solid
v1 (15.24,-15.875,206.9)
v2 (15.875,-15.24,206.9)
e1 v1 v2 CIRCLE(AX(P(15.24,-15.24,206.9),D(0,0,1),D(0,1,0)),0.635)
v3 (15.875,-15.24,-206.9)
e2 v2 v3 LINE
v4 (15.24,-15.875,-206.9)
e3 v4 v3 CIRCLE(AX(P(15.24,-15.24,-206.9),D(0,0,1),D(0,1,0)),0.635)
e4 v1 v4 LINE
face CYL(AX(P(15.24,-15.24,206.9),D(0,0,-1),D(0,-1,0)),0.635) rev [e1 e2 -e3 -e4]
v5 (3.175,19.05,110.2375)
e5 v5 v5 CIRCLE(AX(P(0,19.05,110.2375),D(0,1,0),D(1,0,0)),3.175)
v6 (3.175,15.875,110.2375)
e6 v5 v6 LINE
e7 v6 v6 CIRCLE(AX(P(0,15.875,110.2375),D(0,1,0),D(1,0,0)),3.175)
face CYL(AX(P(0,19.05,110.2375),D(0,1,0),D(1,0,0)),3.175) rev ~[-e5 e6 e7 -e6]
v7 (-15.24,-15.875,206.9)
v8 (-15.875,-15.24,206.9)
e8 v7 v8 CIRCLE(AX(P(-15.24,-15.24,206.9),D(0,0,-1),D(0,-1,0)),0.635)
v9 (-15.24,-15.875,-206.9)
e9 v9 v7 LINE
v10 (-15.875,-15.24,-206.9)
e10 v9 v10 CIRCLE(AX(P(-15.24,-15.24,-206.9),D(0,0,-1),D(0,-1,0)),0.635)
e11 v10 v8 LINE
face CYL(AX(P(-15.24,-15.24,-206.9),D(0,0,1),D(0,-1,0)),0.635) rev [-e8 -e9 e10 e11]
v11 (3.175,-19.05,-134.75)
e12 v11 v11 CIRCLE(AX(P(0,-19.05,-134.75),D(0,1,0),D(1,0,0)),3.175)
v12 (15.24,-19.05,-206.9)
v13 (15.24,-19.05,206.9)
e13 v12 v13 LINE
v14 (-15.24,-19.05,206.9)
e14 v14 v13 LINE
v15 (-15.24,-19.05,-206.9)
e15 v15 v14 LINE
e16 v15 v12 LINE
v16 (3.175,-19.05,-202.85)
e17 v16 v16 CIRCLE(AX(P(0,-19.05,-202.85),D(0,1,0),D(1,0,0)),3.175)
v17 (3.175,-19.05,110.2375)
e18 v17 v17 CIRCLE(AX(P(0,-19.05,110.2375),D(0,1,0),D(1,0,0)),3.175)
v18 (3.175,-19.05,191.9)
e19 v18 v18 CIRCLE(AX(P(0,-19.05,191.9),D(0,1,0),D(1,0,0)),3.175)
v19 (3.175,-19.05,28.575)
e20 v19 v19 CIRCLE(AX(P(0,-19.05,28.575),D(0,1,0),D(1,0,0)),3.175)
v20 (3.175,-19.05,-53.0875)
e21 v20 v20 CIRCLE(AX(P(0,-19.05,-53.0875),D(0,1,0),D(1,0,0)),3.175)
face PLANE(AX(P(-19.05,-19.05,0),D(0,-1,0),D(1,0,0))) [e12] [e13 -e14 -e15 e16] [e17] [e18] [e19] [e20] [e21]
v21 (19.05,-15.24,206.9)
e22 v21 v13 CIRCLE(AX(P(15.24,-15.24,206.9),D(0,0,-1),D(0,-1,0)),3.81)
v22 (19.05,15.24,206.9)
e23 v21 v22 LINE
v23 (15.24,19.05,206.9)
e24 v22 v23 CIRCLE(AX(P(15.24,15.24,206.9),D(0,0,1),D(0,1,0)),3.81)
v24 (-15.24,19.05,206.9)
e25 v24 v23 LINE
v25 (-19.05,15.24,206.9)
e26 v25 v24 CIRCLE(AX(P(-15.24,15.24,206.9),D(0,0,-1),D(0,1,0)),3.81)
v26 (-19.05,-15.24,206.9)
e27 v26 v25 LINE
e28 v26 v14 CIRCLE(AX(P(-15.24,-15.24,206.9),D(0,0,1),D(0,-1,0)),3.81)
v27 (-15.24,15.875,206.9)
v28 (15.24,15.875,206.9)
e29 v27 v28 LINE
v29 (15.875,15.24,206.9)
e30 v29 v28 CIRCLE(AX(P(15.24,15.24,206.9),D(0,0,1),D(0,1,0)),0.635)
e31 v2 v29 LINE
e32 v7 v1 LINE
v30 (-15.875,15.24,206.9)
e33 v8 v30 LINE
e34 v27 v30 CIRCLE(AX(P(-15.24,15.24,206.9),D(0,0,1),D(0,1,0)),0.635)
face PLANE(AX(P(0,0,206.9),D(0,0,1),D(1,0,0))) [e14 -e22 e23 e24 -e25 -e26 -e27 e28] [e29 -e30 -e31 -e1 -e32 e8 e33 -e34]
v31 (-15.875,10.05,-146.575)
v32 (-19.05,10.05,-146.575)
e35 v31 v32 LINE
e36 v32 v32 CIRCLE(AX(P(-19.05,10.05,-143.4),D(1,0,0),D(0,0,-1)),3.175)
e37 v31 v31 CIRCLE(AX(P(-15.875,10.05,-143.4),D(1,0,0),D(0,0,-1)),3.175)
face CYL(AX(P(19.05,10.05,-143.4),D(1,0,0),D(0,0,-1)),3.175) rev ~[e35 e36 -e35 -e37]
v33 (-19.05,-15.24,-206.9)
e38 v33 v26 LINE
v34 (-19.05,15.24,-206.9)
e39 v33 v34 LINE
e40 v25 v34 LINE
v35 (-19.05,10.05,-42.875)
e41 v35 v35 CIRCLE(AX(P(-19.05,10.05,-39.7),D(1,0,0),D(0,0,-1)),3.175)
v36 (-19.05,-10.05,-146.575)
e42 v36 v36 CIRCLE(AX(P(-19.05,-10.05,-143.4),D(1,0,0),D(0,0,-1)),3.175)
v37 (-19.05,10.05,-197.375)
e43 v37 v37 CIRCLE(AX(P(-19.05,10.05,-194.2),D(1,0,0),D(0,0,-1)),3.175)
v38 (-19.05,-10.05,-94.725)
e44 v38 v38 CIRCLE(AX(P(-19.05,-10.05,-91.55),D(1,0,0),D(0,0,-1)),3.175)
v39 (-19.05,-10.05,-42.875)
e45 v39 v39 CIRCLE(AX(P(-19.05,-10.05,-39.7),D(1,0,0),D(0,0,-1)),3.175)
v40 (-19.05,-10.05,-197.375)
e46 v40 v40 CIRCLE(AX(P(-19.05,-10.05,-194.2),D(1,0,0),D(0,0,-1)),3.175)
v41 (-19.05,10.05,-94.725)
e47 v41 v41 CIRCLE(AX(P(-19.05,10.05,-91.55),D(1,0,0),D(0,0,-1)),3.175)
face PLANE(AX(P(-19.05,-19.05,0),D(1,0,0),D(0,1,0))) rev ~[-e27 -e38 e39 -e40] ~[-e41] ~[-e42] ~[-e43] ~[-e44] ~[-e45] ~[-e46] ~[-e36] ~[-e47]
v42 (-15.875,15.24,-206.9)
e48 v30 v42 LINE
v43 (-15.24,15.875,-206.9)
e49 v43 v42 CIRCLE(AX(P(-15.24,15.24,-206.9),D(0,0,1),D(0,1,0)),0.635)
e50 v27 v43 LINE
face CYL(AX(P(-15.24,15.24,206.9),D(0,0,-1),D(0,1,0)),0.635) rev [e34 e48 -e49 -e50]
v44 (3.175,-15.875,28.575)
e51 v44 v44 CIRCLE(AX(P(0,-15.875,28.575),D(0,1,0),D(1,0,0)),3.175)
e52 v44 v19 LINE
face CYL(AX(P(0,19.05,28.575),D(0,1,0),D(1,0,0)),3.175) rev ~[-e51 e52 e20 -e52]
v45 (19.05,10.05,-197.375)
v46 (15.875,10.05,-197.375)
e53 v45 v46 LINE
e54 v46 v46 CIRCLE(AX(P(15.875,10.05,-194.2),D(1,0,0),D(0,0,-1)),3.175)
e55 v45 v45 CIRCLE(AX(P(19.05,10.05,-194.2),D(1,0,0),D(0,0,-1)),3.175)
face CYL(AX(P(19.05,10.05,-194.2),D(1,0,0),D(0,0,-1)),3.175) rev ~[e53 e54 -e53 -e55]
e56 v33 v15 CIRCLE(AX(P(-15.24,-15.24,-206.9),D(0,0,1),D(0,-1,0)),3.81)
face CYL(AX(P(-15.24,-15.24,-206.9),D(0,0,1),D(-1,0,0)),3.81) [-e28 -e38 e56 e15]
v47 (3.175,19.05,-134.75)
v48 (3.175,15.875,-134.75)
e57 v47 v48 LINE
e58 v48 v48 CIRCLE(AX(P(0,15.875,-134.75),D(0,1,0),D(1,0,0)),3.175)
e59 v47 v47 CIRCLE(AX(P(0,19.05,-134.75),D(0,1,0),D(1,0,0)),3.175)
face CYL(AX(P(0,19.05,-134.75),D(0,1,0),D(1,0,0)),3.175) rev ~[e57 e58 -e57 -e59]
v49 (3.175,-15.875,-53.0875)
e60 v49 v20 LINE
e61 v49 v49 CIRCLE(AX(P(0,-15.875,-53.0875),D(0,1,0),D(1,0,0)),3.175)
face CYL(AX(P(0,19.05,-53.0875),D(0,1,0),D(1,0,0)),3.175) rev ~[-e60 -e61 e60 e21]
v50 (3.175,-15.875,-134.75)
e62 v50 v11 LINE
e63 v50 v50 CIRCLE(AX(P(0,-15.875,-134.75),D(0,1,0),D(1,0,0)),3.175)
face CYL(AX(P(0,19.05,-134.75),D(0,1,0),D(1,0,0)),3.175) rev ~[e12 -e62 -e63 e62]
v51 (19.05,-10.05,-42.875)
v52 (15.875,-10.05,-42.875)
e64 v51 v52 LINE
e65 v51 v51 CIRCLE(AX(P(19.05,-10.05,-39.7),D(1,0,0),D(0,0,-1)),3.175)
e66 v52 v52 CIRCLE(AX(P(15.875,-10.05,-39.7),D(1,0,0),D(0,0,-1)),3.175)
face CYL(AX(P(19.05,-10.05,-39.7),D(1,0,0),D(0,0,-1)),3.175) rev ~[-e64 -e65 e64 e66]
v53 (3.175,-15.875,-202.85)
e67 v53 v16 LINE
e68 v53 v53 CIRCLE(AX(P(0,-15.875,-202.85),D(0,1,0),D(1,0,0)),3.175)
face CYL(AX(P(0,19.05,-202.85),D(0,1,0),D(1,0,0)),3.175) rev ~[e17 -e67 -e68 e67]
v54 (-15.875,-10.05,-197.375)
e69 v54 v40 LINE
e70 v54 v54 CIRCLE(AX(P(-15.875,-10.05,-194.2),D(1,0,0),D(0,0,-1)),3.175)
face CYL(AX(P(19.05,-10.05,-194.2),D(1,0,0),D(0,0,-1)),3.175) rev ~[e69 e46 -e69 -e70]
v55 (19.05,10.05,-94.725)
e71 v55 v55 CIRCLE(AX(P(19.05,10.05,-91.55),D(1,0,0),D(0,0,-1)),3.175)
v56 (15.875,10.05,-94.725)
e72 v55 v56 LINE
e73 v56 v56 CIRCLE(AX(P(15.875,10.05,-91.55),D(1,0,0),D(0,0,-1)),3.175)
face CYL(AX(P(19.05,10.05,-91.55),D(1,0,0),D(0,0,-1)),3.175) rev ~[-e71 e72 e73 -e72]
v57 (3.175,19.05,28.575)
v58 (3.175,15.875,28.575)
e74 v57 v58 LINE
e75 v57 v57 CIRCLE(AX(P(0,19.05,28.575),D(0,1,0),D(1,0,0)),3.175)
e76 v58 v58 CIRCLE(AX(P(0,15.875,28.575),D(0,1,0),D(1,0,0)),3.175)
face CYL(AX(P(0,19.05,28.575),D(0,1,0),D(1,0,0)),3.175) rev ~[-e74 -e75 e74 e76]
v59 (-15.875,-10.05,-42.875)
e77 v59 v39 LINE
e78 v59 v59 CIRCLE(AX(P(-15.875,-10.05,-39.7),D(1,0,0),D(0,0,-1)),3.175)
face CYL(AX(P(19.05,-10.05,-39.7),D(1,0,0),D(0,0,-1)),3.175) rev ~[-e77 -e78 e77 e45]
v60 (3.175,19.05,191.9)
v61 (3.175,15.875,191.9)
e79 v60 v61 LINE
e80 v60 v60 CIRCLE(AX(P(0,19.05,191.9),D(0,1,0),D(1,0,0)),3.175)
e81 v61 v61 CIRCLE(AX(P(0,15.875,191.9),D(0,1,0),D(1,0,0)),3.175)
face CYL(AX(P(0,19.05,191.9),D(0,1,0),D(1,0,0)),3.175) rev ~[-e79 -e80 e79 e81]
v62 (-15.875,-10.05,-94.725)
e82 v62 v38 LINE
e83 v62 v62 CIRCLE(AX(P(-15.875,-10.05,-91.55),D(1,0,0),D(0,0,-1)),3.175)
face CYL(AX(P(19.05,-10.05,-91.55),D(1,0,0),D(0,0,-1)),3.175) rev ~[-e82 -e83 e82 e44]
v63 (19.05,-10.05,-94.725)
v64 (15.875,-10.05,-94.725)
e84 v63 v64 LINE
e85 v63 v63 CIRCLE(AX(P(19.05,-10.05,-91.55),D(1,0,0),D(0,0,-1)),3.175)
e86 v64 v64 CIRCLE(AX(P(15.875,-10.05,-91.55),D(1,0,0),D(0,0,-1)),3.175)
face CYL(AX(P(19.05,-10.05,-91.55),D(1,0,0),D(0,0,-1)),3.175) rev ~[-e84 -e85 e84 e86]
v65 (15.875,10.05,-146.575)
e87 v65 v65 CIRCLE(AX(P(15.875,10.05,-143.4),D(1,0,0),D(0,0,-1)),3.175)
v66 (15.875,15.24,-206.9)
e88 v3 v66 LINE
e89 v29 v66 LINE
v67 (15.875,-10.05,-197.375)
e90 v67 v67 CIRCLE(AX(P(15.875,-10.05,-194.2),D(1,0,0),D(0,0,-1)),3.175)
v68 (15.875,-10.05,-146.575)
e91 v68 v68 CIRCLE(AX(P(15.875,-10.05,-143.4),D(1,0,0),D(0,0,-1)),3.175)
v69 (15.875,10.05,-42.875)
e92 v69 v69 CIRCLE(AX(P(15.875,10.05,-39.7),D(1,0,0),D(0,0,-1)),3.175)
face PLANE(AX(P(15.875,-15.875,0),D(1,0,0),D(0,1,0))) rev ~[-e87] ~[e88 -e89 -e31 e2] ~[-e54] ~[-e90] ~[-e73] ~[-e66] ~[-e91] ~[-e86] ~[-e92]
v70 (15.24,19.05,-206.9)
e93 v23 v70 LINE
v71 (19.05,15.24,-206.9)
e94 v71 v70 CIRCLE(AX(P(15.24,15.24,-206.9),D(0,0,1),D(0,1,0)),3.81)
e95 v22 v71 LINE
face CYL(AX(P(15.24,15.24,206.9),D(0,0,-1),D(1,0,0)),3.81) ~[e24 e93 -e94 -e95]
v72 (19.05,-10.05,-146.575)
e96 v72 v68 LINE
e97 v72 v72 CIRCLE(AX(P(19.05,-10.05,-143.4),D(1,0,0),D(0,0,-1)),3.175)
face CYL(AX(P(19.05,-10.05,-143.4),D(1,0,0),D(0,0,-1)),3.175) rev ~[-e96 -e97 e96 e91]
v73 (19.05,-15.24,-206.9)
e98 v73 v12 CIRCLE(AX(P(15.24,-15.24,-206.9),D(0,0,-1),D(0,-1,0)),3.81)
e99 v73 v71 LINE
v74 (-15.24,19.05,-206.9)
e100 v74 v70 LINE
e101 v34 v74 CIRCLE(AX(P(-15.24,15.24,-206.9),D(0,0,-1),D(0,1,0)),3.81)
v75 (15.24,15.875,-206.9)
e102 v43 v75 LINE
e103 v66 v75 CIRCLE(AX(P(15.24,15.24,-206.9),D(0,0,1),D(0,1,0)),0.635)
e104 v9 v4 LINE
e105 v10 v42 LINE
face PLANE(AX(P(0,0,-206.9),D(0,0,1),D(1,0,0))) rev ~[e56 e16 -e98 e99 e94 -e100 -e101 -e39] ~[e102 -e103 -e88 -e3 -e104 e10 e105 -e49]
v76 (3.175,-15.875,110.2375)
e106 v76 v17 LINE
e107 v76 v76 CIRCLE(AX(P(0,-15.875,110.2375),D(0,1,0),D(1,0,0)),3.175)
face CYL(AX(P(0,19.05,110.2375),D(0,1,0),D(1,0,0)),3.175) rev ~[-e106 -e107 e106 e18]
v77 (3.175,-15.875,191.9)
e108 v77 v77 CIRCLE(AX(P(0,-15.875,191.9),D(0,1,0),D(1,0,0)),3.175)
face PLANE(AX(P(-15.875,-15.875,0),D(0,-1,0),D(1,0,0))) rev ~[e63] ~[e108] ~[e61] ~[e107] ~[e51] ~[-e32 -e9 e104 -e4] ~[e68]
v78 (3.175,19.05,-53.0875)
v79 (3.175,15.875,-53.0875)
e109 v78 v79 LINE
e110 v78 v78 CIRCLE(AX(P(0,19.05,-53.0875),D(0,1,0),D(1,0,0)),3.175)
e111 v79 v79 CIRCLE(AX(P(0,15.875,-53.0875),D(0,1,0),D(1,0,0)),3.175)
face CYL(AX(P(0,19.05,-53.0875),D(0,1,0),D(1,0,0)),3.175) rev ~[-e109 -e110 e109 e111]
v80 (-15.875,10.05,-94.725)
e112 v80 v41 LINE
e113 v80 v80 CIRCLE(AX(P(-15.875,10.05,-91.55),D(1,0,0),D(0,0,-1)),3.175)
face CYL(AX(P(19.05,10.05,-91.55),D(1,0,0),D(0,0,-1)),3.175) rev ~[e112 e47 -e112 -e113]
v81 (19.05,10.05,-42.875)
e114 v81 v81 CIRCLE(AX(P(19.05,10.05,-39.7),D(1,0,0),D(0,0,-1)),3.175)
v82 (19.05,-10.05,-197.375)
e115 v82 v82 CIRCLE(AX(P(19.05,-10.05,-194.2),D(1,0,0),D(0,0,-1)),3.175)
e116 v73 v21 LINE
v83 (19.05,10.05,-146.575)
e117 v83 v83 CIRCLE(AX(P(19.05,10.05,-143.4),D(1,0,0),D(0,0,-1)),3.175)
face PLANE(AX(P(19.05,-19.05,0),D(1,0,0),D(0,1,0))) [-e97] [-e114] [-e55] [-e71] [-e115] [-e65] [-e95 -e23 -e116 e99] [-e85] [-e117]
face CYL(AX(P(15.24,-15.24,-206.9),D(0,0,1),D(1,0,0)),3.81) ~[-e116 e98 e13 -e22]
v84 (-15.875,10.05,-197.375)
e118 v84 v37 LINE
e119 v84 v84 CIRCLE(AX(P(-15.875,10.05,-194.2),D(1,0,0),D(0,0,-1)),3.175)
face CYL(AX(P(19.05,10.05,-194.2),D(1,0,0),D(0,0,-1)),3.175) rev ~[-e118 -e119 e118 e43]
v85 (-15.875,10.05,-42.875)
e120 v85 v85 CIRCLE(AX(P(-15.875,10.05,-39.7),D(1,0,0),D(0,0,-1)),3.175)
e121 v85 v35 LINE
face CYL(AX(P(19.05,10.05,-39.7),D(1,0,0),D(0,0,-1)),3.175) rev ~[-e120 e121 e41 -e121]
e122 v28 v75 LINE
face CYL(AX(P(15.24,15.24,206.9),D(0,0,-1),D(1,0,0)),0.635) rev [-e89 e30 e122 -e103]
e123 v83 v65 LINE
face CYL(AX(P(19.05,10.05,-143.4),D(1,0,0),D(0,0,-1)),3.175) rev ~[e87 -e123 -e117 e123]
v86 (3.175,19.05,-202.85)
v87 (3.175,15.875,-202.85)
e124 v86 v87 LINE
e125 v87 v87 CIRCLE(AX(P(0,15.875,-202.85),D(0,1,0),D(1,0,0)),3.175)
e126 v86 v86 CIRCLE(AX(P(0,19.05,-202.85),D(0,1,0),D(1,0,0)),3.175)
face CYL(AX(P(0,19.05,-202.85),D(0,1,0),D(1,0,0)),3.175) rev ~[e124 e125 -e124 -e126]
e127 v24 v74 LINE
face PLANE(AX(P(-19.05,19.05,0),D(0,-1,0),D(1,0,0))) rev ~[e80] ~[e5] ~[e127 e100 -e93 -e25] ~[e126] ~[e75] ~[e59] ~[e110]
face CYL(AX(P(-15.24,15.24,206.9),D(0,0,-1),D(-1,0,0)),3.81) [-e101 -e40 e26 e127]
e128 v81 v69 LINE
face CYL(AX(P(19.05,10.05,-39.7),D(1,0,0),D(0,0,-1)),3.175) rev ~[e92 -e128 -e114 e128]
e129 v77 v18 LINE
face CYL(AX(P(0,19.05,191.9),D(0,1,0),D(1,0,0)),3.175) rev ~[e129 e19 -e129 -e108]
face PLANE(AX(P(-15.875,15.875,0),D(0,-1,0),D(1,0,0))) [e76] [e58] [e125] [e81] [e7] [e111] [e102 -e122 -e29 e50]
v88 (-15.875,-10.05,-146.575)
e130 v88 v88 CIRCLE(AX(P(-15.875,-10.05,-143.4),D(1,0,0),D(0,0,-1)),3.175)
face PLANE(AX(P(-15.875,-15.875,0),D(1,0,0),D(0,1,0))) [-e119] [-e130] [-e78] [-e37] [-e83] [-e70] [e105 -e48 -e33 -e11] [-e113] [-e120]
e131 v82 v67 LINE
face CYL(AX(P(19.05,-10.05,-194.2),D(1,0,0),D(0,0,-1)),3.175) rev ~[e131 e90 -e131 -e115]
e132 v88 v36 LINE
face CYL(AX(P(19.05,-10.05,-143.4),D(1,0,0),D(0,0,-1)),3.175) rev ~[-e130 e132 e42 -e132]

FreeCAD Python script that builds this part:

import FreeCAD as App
import Part
import Sketcher
from FreeCAD import Vector
Q = App.Units.Quantity


def edges_at(feature, points):
    """Names of the edges that pass closest to the given points."""
    edges = feature.Shape.Edges
    near = lambda p: min(range(len(edges)), key=lambda i: edges[i].distToShape(Part.Vertex(*p))[0])
    return sorted({f"Edge{near(p) + 1}" for p in points})


def add_polygon(sketch, points):
    """Adds a closed chain of lines whose ends are joined by coincident constraints."""
    first, n = sketch.GeometryCount, len(points)
    for a, b in zip(points, points[1:] + points[:1]):
        sketch.addGeometry(Part.LineSegment(App.Vector(*a, 0), App.Vector(*b, 0)), False)
    for i in range(n):
        sketch.addConstraint(Sketcher.Constraint("Coincident", first + i, 2, first + (i + 1) % n, 1))

doc = App.newDocument("Part")
body = doc.addObject("PartDesign::Body", "Body")

sketch1 = doc.addObject("Sketcher::SketchObject", "Sketch")
body.addObject(sketch1)
sketch1.AttachmentSupport = (doc.XY_Plane, [""])
sketch1.MapMode = "FlatFace"
add_polygon(sketch1, [(-19, 19), (-19, -19), (19, -19), (19, 19)])
add_polygon(sketch1, [(16, -16), (-16, -16), (-16, 16), (16, 16)])
sketch1.addConstraint([
    Sketcher.Constraint("Vertical", 0),
    Sketcher.Constraint("Horizontal", 1),
    Sketcher.Constraint("Vertical", 2),
    Sketcher.Constraint("Horizontal", 3),
    Sketcher.Constraint("Horizontal", 4),
    Sketcher.Constraint("Vertical", 5),
    Sketcher.Constraint("Horizontal", 6),
    Sketcher.Constraint("Vertical", 7),
    Sketcher.Constraint("Symmetric", 0, 2, 2, 2, -1, 1),
    Sketcher.Constraint("Symmetric", 4, 2, 6, 2, -1, 1),
    Sketcher.Constraint("Equal", 3, 0),
    Sketcher.Constraint("Equal", 6, 5),
    Sketcher.Constraint("DistanceX", 1, 1, 1, 2, Q("1.5 in")),
    Sketcher.Constraint("DistanceX", 4, 2, 4, 1, Q("1.25 in")),
])
pad1 = doc.addObject("PartDesign::Pad", "Pad")
body.addObject(pad1)
pad1.Profile = sketch1
pad1.Length = 413.8
pad1.Midplane = True
doc.recompute()

fillet = doc.addObject("PartDesign::Fillet", "Fillet")
body.addObject(fillet)
fillet.Base = (pad1, edges_at(pad1, [
    (19.05, -19.05, 0),
    (-19.05, -19.05, 0),
    (-19.05, 19.05, 0),
    (19.05, 19.05, 0),
]))
fillet.Radius = Q("0.15 in")
doc.recompute()

fillet2 = doc.addObject("PartDesign::Fillet", "Fillet001")
body.addObject(fillet2)
fillet2.Base = (fillet, edges_at(fillet, [
    (15.875, 15.875, 0),
    (-15.875, 15.875, 0),
    (-15.875, -15.875, 0),
    (15.875, -15.875, 0),
]))
fillet2.Radius = Q("0.025 in")

sketch2 = doc.addObject("Sketcher::SketchObject", "Sketch001")
body.addObject(sketch2)
sketch2.AttachmentSupport = (doc.XZ_Plane, [""])
sketch2.MapMode = "FlatFace"
sketch2.AttachmentOffset = App.Placement(Vector(0, 0, -0.75 * 25.4), App.Rotation())
sketch2.addGeometry([
    Part.Circle(Vector(0, -202.8, 0), Vector(0, 0, 1), 3.2),
    Part.Circle(Vector(0, -134.8, 0), Vector(0, 0, 1), 3.2),
    Part.Circle(Vector(0, -53.1, 0), Vector(0, 0, 1), 3.2),
    Part.Circle(Vector(0, 28.6, 0), Vector(0, 0, 1), 3.2),
    Part.Circle(Vector(0, 110.2, 0), Vector(0, 0, 1), 3.2),
    Part.Circle(Vector(0, 191.9, 0), Vector(0, 0, 1), 3.2),
], False)
sketch2.addConstraint([
    Sketcher.Constraint("Equal", 0, 1),
    Sketcher.Constraint("Equal", 1, 2),
    Sketcher.Constraint("Equal", 2, 3),
    Sketcher.Constraint("Equal", 3, 4),
    Sketcher.Constraint("Equal", 4, 5),
    Sketcher.Constraint("PointOnObject", 0, 3, -2),
    Sketcher.Constraint("PointOnObject", 1, 3, -2),
    Sketcher.Constraint("PointOnObject", 2, 3, -2),
    Sketcher.Constraint("PointOnObject", 3, 3, -2),
    Sketcher.Constraint("PointOnObject", 4, 3, -2),
    Sketcher.Constraint("PointOnObject", 5, 3, -2),
    Sketcher.Constraint("Diameter", 0, Q("0.25 in")),
    Sketcher.Constraint("DistanceY", -1, 1, 3, 3, Q("1.125 in")),
    Sketcher.Constraint("DistanceY", 0, 3, -1, 1, 202.85),
    Sketcher.Constraint("DistanceY", 1, 3, -1, 1, 134.75),
    Sketcher.Constraint("DistanceY", 2, 3, -1, 1, 53.0875),
    Sketcher.Constraint("DistanceY", -1, 1, 4, 3, 110.2375),
    Sketcher.Constraint("DistanceY", -1, 1, 5, 3, 191.9),
])
pocket1 = doc.addObject("PartDesign::Pocket", "Pocket")
body.addObject(pocket1)
pocket1.Profile = sketch2
pocket1.Type = "ThroughAll"
pocket1.Midplane = True

sketch3 = doc.addObject("Sketcher::SketchObject", "Sketch002")
body.addObject(sketch3)
sketch3.AttachmentSupport = (doc.YZ_Plane, [""])
sketch3.MapMode = "FlatFace"
sketch3.AttachmentOffset = App.Placement(Vector(0, 0, 0.75 * 25.4), App.Rotation())
sketch3.addGeometry([
    Part.Circle(Vector(10.1, -194.2, 0), Vector(0, 0, 1), 3.2),
    Part.Circle(Vector(-10.1, -194.2, 0), Vector(0, 0, 1), 3.2),
    Part.Circle(Vector(10.1, -143.4, 0), Vector(0, 0, 1), 3.2),
    Part.Circle(Vector(10.1, -39.7, 0), Vector(0, 0, 1), 3.2),
    Part.Circle(Vector(10.1, -91.5, 0), Vector(0, 0, 1), 3.2),
    Part.Circle(Vector(-10.1, -143.4, 0), Vector(0, 0, 1), 3.2),
    Part.Circle(Vector(-10.1, -91.5, 0), Vector(0, 0, 1), 3.2),
    Part.Circle(Vector(-10.1, -39.7, 0), Vector(0, 0, 1), 3.2),
], False)
sketch3.addConstraint([
    Sketcher.Constraint("Equal", 0, 1),
    Sketcher.Constraint("Equal", 1, 2),
    Sketcher.Constraint("Equal", 2, 3),
    Sketcher.Constraint("Equal", 3, 4),
    Sketcher.Constraint("Equal", 4, 5),
    Sketcher.Constraint("Equal", 5, 6),
    Sketcher.Constraint("Equal", 6, 7),
    Sketcher.Constraint("Symmetric", 0, 3, 1, 3, -2),
    Sketcher.Constraint("Symmetric", 2, 3, 5, 3, -2),
    Sketcher.Constraint("Symmetric", 4, 3, 6, 3, -2),
    Sketcher.Constraint("Symmetric", 3, 3, 7, 3, -2),
    Sketcher.Constraint("Vertical", 0, 3, 2, 3),
    Sketcher.Constraint("Vertical", 2, 3, 3, 3),
    Sketcher.Constraint("Vertical", 3, 3, 4, 3),
    Sketcher.Constraint("Diameter", 0, Q("0.25 in")),
    Sketcher.Constraint("DistanceY", 0, 3, 2, 3, Q("2 in")),
    Sketcher.Constraint("DistanceX", -1, 1, 0, 3, 10.05),
    Sketcher.Constraint("DistanceY", 0, 3, -1, 1, 194.2),
    Sketcher.Constraint("DistanceY", 3, 3, -1, 1, 39.7),
    Sketcher.Constraint("DistanceY", 4, 3, -1, 1, 91.55),
])
pocket2 = doc.addObject("PartDesign::Pocket", "Pocket001")
body.addObject(pocket2)
pocket2.Profile = sketch3
pocket2.Type = "ThroughAll"

doc.recompute()
